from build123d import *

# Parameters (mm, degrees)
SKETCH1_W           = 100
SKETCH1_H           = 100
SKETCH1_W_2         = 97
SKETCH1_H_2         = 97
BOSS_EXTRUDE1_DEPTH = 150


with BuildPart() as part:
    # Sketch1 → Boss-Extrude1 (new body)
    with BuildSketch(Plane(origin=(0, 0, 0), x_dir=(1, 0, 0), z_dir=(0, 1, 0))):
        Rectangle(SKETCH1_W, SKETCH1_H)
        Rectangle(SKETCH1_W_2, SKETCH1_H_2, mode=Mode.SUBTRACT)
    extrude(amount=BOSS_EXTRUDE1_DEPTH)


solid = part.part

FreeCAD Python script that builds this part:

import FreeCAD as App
import Part
import Sketcher
from FreeCAD import Vector
Q = App.Units.Quantity

doc = App.newDocument("Part")
body = doc.addObject("PartDesign::Body", "Body")

# Sketch on XZ plane
sketch1 = doc.addObject("Sketcher::SketchObject", "Sketch")
body.addObject(sketch1)
sketch1.AttachmentSupport = (doc.XZ_Plane, [""])
sketch1.MapMode = "FlatFace"
sketch1.addGeometry(Part.LineSegment(Vector(-50, -50, 0), Vector(-50, 50, 0)), False)
sketch1.addGeometry(Part.LineSegment(Vector(-50, 50, 0), Vector(50, 50, 0)), False)
sketch1.addGeometry(Part.LineSegment(Vector(50, 50, 0), Vector(50, -50, 0)), False)
sketch1.addGeometry(Part.LineSegment(Vector(50, -50, 0), Vector(-50, -50, 0)), False)
sketch1.addGeometry(Part.LineSegment(Vector(48, 48, 0), Vector(-48, 48, 0)), False)
sketch1.addGeometry(Part.LineSegment(Vector(-48, 48, 0), Vector(-48, -48, 0)), False)
sketch1.addGeometry(Part.LineSegment(Vector(-48, -48, 0), Vector(48, -48, 0)), False)
sketch1.addGeometry(Part.LineSegment(Vector(48, -48, 0), Vector(48, 48, 0)), False)
sketch1.addConstraint(Sketcher.Constraint("Coincident", 0, 2, 1, 1))
sketch1.addConstraint(Sketcher.Constraint("Coincident", 1, 2, 2, 1))
sketch1.addConstraint(Sketcher.Constraint("Coincident", 2, 2, 3, 1))
sketch1.addConstraint(Sketcher.Constraint("Coincident", 3, 2, 0, 1))
sketch1.addConstraint(Sketcher.Constraint("Coincident", 4, 2, 5, 1))
sketch1.addConstraint(Sketcher.Constraint("Coincident", 5, 2, 6, 1))
sketch1.addConstraint(Sketcher.Constraint("Coincident", 6, 2, 7, 1))
sketch1.addConstraint(Sketcher.Constraint("Coincident", 7, 2, 4, 1))
sketch1.addConstraint(Sketcher.Constraint("Vertical", 0))
sketch1.addConstraint(Sketcher.Constraint("Horizontal", 1))
sketch1.addConstraint(Sketcher.Constraint("Vertical", 2))
sketch1.addConstraint(Sketcher.Constraint("Horizontal", 3))
sketch1.addConstraint(Sketcher.Constraint("Horizontal", 4))
sketch1.addConstraint(Sketcher.Constraint("Vertical", 5))
sketch1.addConstraint(Sketcher.Constraint("Horizontal", 6))
sketch1.addConstraint(Sketcher.Constraint("Vertical", 7))
sketch1.addConstraint(Sketcher.Constraint("Symmetric", 0, 2, 2, 2, -1, 1))
sketch1.addConstraint(Sketcher.Constraint("Symmetric", 4, 2, 6, 2, -1, 1))
sketch1.addConstraint(Sketcher.Constraint("Equal", 3, 0))
sketch1.addConstraint(Sketcher.Constraint("Equal", 6, 5))
sketch1.addConstraint(Sketcher.Constraint("DistanceX", 1, 1, 1, 2, Q("100 mm")))
sketch1.addConstraint(Sketcher.Constraint("DistanceX", 4, 2, 4, 1, Q("97 mm")))
pad1 = doc.addObject("PartDesign::Pad", "Pad")
body.addObject(pad1)
pad1.Profile = sketch1
pad1.Length = 150
pad1.Reversed = True

doc.recompute()
